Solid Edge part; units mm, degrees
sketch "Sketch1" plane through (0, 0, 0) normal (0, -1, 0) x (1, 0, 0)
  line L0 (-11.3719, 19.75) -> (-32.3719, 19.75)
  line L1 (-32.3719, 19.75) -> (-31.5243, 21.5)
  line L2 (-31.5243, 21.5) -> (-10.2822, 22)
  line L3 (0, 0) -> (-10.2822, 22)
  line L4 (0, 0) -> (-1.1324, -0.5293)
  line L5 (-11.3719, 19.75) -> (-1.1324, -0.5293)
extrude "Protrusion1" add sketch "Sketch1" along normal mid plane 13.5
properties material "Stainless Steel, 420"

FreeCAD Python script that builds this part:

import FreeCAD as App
import Part
import Sketcher
Q = App.Units.Quantity

doc = App.newDocument("Part")
body = doc.addObject("PartDesign::Body", "Body")

# Sketch on XZ plane
sketch1 = body.newObject("Sketcher::SketchObject", "Sketch")
sketch1.AttachmentSupport = (doc.getObject("XZ_Plane"), [""])
sketch1.MapMode = "FlatFace"
sketch1.addGeometry([
    Part.LineSegment(App.Vector(-32.3719, 19.75, 0), App.Vector(-11.3719, 19.75, 0)),  # 0
    Part.LineSegment(App.Vector(-11.3719, 19.75, 0), App.Vector(-1.1324, -0.5293, 0)),  # 1
    Part.LineSegment(App.Vector(-1.1324, -0.5293, 0), App.Vector(0, 0, 0)),  # 2
    Part.LineSegment(App.Vector(0, 0, 0), App.Vector(-10.2822, 22, 0)),  # 3
    Part.LineSegment(App.Vector(-10.2822, 22, 0), App.Vector(-31.5243, 21.5, 0)),  # 4
    Part.LineSegment(App.Vector(-31.5243, 21.5, 0), App.Vector(-32.3719, 19.75, 0)),  # 5
], False)
sketch1.addConstraint([
    Sketcher.Constraint("Coincident", 0, 2, 1, 1),
    Sketcher.Constraint("Coincident", 1, 2, 2, 1),
    Sketcher.Constraint("Coincident", 2, 2, 3, 1),
    Sketcher.Constraint("Coincident", 3, 2, 4, 1),
    Sketcher.Constraint("Coincident", 4, 2, 5, 1),
    Sketcher.Constraint("Coincident", 5, 2, 0, 1),
    Sketcher.Constraint("Horizontal", 0),
    Sketcher.Constraint("Coincident", 2, 2, -1, 1),
    Sketcher.Constraint("Perpendicular", 2, 3),
    Sketcher.Constraint("DistanceX", 0, 1, 0, 2, Q("21 mm")),
    Sketcher.Constraint("DistanceY", -1, 1, 3, 2, Q("22 mm")),
    Sketcher.Constraint("DistanceY", -1, 1, 4, 2, Q("21.5 mm")),
    Sketcher.Constraint("Angle", 1, Q("-63.2097 deg")),
    Sketcher.Constraint("Angle", 3, Q("115.05 deg")),
    Sketcher.Constraint("Distance", 2, Q("1.25 mm")),
    Sketcher.Constraint("DistanceY", -1, 1, 0, 2, Q("19.75 mm")),
    Sketcher.Constraint("Distance", 4, Q("21.248 mm")),
])
pad1 = body.newObject("PartDesign::Pad", "Pad")
pad1.Profile = sketch1
pad1.Length = 13.5
pad1.Midplane = True

doc.recompute()
